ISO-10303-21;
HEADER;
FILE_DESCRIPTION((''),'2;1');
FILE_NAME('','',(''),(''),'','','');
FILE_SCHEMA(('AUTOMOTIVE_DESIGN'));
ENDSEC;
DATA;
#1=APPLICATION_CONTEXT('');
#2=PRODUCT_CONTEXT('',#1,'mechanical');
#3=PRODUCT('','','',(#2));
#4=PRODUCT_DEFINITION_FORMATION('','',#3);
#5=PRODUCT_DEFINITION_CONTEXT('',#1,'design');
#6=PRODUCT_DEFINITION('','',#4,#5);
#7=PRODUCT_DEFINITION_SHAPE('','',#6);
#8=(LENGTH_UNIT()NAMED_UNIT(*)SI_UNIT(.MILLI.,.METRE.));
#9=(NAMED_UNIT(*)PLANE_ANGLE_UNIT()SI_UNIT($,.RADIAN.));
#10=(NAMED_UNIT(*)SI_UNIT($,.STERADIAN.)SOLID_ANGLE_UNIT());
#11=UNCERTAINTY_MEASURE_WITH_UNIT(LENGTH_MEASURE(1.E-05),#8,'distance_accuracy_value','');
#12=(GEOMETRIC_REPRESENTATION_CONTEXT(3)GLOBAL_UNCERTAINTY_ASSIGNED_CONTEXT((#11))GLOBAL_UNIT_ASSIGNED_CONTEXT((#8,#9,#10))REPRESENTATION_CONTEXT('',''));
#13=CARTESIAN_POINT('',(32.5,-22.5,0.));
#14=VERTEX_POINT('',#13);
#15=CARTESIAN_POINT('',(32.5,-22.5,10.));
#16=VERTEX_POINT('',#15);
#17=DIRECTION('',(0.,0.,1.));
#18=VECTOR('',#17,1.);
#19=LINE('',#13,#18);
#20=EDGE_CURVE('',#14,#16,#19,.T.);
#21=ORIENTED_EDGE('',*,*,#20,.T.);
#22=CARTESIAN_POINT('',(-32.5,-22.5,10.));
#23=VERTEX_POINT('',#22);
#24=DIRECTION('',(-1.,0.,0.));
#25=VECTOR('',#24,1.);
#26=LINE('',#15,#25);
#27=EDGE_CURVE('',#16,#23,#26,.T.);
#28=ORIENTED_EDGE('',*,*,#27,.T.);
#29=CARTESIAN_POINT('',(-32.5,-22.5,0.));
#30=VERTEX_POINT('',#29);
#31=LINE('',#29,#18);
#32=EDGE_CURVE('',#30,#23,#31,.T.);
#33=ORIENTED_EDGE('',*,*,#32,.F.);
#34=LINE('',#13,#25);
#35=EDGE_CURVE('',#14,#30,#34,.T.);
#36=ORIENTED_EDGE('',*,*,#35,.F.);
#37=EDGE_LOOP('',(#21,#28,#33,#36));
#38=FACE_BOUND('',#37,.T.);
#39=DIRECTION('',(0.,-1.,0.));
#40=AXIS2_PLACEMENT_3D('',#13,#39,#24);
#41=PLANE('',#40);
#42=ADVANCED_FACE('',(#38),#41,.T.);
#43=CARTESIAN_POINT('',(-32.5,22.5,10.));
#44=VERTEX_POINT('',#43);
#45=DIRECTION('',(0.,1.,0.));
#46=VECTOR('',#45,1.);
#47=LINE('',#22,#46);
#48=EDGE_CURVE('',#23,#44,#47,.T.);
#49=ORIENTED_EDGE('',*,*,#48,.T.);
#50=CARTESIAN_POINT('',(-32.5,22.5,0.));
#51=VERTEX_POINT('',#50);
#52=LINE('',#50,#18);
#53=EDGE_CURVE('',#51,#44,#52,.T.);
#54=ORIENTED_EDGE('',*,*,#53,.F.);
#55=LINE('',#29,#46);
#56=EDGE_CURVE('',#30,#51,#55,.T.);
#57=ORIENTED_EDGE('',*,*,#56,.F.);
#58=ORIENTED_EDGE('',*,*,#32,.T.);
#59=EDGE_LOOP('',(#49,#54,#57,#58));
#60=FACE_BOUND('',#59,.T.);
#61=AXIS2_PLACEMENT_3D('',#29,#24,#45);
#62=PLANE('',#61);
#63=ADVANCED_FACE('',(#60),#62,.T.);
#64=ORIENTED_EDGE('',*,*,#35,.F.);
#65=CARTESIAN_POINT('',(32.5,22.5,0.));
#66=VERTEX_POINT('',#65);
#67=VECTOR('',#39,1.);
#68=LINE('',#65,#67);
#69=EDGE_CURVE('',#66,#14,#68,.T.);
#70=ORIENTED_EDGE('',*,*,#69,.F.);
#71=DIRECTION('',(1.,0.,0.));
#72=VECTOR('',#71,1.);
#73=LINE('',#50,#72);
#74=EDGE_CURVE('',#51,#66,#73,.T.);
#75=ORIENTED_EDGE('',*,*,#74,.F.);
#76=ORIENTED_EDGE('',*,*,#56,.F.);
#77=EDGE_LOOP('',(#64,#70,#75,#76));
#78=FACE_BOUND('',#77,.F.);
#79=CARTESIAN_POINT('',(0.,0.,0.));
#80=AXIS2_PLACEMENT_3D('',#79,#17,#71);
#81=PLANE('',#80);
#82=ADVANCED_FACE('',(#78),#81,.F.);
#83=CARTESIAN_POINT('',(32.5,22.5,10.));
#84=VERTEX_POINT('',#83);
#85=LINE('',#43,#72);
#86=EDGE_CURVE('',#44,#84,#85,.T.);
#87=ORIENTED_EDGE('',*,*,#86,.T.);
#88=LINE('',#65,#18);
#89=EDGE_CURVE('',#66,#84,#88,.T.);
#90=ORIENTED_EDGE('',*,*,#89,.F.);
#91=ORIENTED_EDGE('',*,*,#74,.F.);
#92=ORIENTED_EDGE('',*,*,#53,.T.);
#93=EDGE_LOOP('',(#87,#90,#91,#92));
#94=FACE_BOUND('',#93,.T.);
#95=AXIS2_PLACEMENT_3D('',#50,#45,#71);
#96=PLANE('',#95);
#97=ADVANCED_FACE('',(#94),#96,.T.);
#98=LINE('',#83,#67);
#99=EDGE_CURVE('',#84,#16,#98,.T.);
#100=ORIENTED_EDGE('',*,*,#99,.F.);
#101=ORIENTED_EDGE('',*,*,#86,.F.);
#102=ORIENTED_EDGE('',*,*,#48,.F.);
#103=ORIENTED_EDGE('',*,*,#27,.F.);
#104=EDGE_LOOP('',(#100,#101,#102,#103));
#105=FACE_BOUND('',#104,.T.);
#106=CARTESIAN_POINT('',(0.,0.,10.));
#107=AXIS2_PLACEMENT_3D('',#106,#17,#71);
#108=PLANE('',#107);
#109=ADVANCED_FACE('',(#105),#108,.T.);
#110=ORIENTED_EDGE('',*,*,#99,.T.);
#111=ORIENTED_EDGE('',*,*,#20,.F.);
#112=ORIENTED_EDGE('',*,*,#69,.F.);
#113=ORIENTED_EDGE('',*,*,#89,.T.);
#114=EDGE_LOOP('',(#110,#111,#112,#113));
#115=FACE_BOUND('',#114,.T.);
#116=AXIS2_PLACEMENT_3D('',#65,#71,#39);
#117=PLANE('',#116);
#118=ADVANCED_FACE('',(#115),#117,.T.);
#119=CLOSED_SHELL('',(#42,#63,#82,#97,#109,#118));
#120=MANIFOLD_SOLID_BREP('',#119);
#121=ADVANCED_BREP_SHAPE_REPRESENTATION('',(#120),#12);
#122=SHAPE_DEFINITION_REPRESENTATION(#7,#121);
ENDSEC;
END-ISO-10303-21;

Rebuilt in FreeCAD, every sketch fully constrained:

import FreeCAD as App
import Part
import Sketcher
from FreeCAD import Vector
Q = App.Units.Quantity


def add_polygon(sketch, points):
    """Adds a closed chain of lines whose ends are joined by coincident constraints."""
    first, n = sketch.GeometryCount, len(points)
    for a, b in zip(points, points[1:] + points[:1]):
        sketch.addGeometry(Part.LineSegment(App.Vector(*a, 0), App.Vector(*b, 0)), False)
    for i in range(n):
        sketch.addConstraint(Sketcher.Constraint("Coincident", first + i, 2, first + (i + 1) % n, 1))

doc = App.newDocument("Part")
params = doc.addObject("Spreadsheet::Sheet", "Params")
for row, (alias, value) in enumerate([
    ("sketch1_width", "65 mm"),
    ("sketch1_height", "45 mm"),
    ("pad1_length", "10 mm"),
], start=1):
    params.set(f"A{row}", alias)
    params.set(f"B{row}", "=" + value)
    params.setAlias(f"B{row}", alias)

body = doc.addObject("PartDesign::Body", "Body")

sketch1 = doc.addObject("Sketcher::SketchObject", "Sketch")
body.addObject(sketch1)
sketch1.AttachmentSupport = (doc.XY_Plane, [""])
sketch1.MapMode = "FlatFace"
add_polygon(sketch1, [(-32, -22), (32, -22), (32, 22), (-32, 22)])
sketch1.addConstraint([
    Sketcher.Constraint("Horizontal", 0),
    Sketcher.Constraint("Vertical", 1),
    Sketcher.Constraint("Horizontal", 2),
    Sketcher.Constraint("Vertical", 3),
    Sketcher.Constraint("Symmetric", 0, 2, 2, 2, -1, 1),
    Sketcher.Constraint("DistanceX", 0, 1, 0, 2, Q("65 mm")),
    Sketcher.Constraint("DistanceY", 1, 1, 1, 2, Q("45 mm")),
])
sketch1.setExpression("Constraints[9]", "Params.sketch1_width")
sketch1.setExpression("Constraints[10]", "Params.sketch1_height")
pad1 = doc.addObject("PartDesign::Pad", "Pad")
body.addObject(pad1)
pad1.Profile = sketch1
pad1.setExpression("Length", "Params.pad1_length")

doc.recompute()
